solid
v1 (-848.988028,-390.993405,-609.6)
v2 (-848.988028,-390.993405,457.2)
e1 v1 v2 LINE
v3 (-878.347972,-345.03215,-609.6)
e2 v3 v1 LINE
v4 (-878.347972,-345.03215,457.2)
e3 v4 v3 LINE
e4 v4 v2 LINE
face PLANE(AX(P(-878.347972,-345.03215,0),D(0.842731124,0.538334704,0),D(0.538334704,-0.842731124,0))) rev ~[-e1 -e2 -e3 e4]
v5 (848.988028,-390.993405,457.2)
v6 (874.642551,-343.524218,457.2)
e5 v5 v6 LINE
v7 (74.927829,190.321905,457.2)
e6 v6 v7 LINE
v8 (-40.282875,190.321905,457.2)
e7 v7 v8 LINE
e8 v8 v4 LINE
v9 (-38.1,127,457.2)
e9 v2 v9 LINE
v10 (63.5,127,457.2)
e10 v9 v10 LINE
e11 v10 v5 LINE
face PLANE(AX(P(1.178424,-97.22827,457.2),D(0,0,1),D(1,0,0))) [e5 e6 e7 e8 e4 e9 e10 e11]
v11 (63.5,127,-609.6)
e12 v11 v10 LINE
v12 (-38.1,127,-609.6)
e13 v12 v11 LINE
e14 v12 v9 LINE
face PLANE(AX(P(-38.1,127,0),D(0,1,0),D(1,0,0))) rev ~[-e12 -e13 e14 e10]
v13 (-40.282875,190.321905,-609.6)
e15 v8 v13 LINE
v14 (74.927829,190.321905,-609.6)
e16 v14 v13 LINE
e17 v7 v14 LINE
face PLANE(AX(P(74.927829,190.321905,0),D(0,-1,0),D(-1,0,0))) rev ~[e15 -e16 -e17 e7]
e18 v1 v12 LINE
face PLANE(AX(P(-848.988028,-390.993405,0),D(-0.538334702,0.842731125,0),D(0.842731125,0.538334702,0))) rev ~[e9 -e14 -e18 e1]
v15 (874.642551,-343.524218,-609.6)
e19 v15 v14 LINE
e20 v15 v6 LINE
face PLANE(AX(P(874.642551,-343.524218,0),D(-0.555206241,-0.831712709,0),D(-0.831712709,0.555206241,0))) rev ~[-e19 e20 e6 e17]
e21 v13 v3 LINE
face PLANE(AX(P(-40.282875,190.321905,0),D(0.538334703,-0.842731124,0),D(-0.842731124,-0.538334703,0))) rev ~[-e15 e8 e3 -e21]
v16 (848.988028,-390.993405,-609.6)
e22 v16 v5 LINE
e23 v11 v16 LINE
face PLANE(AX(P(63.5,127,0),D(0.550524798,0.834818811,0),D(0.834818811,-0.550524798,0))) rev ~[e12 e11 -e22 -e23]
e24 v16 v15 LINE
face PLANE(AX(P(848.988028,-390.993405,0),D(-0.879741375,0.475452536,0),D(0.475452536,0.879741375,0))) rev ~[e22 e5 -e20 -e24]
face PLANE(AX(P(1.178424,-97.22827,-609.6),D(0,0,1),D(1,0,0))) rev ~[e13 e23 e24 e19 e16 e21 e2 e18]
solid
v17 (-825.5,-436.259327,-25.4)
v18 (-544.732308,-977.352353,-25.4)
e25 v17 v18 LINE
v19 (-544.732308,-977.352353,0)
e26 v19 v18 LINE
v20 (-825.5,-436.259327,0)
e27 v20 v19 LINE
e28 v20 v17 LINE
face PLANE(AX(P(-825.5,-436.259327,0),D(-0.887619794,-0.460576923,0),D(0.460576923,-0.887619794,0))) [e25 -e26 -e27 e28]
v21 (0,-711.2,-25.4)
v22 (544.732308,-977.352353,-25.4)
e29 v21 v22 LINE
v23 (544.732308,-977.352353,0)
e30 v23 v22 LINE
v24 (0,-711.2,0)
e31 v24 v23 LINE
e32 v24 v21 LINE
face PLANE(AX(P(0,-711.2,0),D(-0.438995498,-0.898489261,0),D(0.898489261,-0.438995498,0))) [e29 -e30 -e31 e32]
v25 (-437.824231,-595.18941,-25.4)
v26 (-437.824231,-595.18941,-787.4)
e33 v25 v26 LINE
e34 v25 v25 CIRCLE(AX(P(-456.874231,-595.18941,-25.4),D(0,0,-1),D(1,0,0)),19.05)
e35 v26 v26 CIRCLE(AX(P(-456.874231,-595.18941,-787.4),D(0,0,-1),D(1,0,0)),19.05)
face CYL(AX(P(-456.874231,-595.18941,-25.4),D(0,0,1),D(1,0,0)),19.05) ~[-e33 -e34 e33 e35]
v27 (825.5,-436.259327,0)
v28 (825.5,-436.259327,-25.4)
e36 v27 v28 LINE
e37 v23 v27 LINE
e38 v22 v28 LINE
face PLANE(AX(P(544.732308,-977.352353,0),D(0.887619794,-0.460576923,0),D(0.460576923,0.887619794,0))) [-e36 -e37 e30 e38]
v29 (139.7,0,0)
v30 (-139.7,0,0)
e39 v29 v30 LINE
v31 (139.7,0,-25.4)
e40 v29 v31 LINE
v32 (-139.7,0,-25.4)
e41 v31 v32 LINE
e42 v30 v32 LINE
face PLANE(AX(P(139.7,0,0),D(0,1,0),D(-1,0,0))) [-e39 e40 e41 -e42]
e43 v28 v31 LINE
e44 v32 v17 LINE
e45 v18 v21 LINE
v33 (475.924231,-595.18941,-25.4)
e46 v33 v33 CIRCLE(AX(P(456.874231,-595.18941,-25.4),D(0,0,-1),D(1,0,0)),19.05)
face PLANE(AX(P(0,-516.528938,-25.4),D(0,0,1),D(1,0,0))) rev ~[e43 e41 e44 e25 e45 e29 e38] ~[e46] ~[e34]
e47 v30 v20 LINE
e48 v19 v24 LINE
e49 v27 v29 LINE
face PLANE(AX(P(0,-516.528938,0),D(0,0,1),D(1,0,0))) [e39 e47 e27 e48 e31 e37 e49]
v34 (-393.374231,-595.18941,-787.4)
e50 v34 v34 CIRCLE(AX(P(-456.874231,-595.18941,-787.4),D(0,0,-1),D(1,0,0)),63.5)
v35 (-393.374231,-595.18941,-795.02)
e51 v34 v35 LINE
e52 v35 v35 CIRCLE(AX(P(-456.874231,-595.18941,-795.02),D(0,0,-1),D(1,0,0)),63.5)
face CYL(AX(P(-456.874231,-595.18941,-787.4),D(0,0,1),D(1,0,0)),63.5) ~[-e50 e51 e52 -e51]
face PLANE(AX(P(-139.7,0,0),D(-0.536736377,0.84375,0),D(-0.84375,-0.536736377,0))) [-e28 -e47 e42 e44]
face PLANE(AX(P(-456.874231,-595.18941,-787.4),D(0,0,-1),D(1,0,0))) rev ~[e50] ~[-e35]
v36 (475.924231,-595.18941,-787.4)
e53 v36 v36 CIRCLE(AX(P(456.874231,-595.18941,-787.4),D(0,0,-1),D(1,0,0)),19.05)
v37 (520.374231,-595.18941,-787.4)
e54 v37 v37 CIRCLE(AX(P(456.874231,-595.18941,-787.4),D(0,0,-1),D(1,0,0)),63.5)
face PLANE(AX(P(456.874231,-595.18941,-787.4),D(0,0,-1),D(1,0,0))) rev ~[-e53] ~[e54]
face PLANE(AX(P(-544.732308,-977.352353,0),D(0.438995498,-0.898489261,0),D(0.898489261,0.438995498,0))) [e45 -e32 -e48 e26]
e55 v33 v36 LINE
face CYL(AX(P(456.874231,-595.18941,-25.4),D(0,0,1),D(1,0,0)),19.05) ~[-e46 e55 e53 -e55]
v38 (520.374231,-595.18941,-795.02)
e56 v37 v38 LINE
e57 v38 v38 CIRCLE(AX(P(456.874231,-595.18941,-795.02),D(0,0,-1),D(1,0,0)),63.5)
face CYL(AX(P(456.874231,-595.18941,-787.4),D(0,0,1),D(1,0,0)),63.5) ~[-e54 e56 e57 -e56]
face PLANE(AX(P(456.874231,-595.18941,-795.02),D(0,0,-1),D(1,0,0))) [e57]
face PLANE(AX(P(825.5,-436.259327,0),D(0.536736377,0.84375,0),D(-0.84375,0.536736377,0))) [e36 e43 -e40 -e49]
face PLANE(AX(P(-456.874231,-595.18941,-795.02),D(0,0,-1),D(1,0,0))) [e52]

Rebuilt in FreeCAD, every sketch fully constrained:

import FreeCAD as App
import Part
import Sketcher
Q = App.Units.Quantity


def add_polygon(sketch, points):
    """Adds a closed chain of lines whose ends are joined by coincident constraints."""
    first, n = sketch.GeometryCount, len(points)
    for a, b in zip(points, points[1:] + points[:1]):
        sketch.addGeometry(Part.LineSegment(App.Vector(*a, 0), App.Vector(*b, 0)), False)
    for i in range(n):
        sketch.addConstraint(Sketcher.Constraint("Coincident", first + i, 2, first + (i + 1) % n, 1))

doc = App.newDocument("Part")
body = doc.addObject("PartDesign::Body", "Body")

# Sketch on XY plane
sketch1 = doc.addObject("Sketcher::SketchObject", "Sketch")
body.addObject(sketch1)
sketch1.AttachmentSupport = (doc.XY_Plane, [""])
sketch1.MapMode = "FlatFace"
add_polygon(sketch1, [(140, 0), (-140, 0), (-826, -436), (-545, -977), (0, -711), (545, -977), (826, -436)])  # lines 0-6
sketch1.addConstraint(Sketcher.Constraint("Horizontal", 0))
sketch1.addConstraint(Sketcher.Constraint("Symmetric", 0, 2, 6, 2, -1, 1))
sketch1.addConstraint(Sketcher.Constraint("Symmetric", 2, 2, 4, 2, -2))
sketch1.addConstraint(Sketcher.Constraint("Symmetric", 1, 2, 5, 2, -2))
sketch1.addConstraint(Sketcher.Constraint("PointOnObject", 3, 2, -2))
sketch1.addConstraint(Sketcher.Constraint("DistanceX", 0, 2, 0, 1, Q("11 in")))
sketch1.addConstraint(Sketcher.Constraint("Distance", 1, Q("32 in")))
sketch1.addConstraint(Sketcher.Constraint("Distance", 2, Q("24 in")))
sketch1.addConstraint(Sketcher.Constraint("DistanceY", 3, 2, -1, 1, Q("28 in")))
sketch1.addConstraint(Sketcher.Constraint("DistanceX", 1, 2, 0, 2, Q("27 in")))
sketch1.addConstraint(Sketcher.Constraint("DistanceX", 2, 2, -1, 1, Q("544.732308 mm")))
pad1 = doc.addObject("PartDesign::Pad", "Pad")
body.addObject(pad1)
pad1.Profile = sketch1
pad1.Length = Q("1 in")
pad1.Reversed = True

# Sketch on XY plane
sketch2 = doc.addObject("Sketcher::SketchObject", "Sketch001")
body.addObject(sketch2)
sketch2.AttachmentSupport = (doc.XY_Plane, [""])
sketch2.MapMode = "FlatFace"
sketch2.AttachmentOffset = App.Placement(App.Vector(0, 0, -1 * 25.4), App.Rotation())
sketch2.addGeometry(Part.Circle(App.Vector(-457, -595, 0), App.Vector(0, 0, 1), 19), False)
sketch2.addGeometry(Part.Circle(App.Vector(457, -595, 0), App.Vector(0, 0, 1), 19), False)
sketch2.addConstraint(Sketcher.Constraint("Equal", 0, 1))
sketch2.addConstraint(Sketcher.Constraint("Symmetric", 0, 3, 1, 3, -2))
sketch2.addConstraint(Sketcher.Constraint("Diameter", 0, Q("1.5 in")))
sketch2.addConstraint(Sketcher.Constraint("DistanceX", 0, 3, -1, 1, Q("456.874231 mm")))
sketch2.addConstraint(Sketcher.Constraint("DistanceY", 0, 3, -1, 1, Q("595.18941 mm")))
pad2 = doc.addObject("PartDesign::Pad", "Pad001")
body.addObject(pad2)
pad2.Profile = sketch2
pad2.Length = Q("30 in")
pad2.Reversed = True

# Sketch on XY plane
sketch3 = doc.addObject("Sketcher::SketchObject", "Sketch002")
body.addObject(sketch3)
sketch3.AttachmentSupport = (doc.XY_Plane, [""])
sketch3.MapMode = "FlatFace"
sketch3.AttachmentOffset = App.Placement(App.Vector(0, 0, -31 * 25.4), App.Rotation())
sketch3.addGeometry(Part.Circle(App.Vector(-457, -595, 0), App.Vector(0, 0, 1), 64), False)
sketch3.addGeometry(Part.Circle(App.Vector(457, -595, 0), App.Vector(0, 0, 1), 64), False)
sketch3.addConstraint(Sketcher.Constraint("Equal", 0, 1))
sketch3.addConstraint(Sketcher.Constraint("Symmetric", 0, 3, 1, 3, -2))
sketch3.addConstraint(Sketcher.Constraint("Diameter", 0, Q("5 in")))
sketch3.addConstraint(Sketcher.Constraint("DistanceX", 0, 3, -1, 1, Q("456.874231 mm")))
sketch3.addConstraint(Sketcher.Constraint("DistanceY", 0, 3, -1, 1, Q("595.18941 mm")))
pad3 = doc.addObject("PartDesign::Pad", "Pad002")
body.addObject(pad3)
pad3.Profile = sketch3
pad3.Length = Q("0.3 in")
pad3.Reversed = True
body2 = doc.addObject("PartDesign::Body", "Body001")

# Sketch on XY plane
sketch4 = doc.addObject("Sketcher::SketchObject", "Sketch003")
body2.addObject(sketch4)
sketch4.AttachmentSupport = (doc.getObject("XY_Plane001"), [""])
sketch4.MapMode = "FlatFace"
add_polygon(sketch4, [(-878, -345), (-849, -391), (-38, 127), (64, 127), (849, -391), (875, -344), (75, 190), (-40, 190)])  # lines 0-7
sketch4.addConstraint(Sketcher.Constraint("Horizontal", 2))
sketch4.addConstraint(Sketcher.Constraint("Horizontal", 6))
sketch4.addConstraint(Sketcher.Constraint("Symmetric", 0, 2, 3, 2, -2))
sketch4.addConstraint(Sketcher.Constraint("Perpendicular", 0, 1))
sketch4.addConstraint(Sketcher.Constraint("Parallel", 1, 7))
sketch4.addConstraint(Sketcher.Constraint("DistanceX", 2, 1, 2, 2, Q("4 in")))
sketch4.addConstraint(Sketcher.Constraint("DistanceY", -1, 1, 1, 2, Q("5 in")))
sketch4.addConstraint(Sketcher.Constraint("DistanceX", 1, 2, -1, 1, Q("1.5 in")))
sketch4.addConstraint(Sketcher.Constraint("DistanceX", 5, 2, 3, 2, Q("774.060199 mm")))
sketch4.addConstraint(Sketcher.Constraint("DistanceX", 7, 2, 5, 2, Q("953.275801 mm")))
sketch4.addConstraint(Sketcher.Constraint("DistanceX", 6, 2, 6, 1, Q("115.210704 mm")))
sketch4.addConstraint(Sketcher.Constraint("DistanceX", 0, 2, -1, 1, Q("848.988028 mm")))
sketch4.addConstraint(Sketcher.Constraint("DistanceX", -1, 1, 4, 2, Q("874.642551 mm")))
sketch4.addConstraint(Sketcher.Constraint("DistanceY", 4, 2, -1, 1, Q("343.524218 mm")))
sketch4.addConstraint(Sketcher.Constraint("DistanceY", 7, 2, -1, 1, Q("345.03215 mm")))
pad4 = doc.addObject("PartDesign::Pad", "Pad003")
body2.addObject(pad4)
pad4.Profile = sketch4
pad4.Length = Q("24 in")
pad4.Reversed = True

# Sketch on XY plane
sketch5 = doc.addObject("Sketcher::SketchObject", "Sketch004")
body2.addObject(sketch5)
sketch5.AttachmentSupport = (doc.getObject("XY_Plane001"), [""])
sketch5.MapMode = "FlatFace"
add_polygon(sketch5, [(-878, -345), (-849, -391), (-38, 127), (64, 127), (849, -391), (875, -344), (75, 190), (-40, 190)])  # lines 0-7
sketch5.addConstraint(Sketcher.Constraint("Horizontal", 2))
sketch5.addConstraint(Sketcher.Constraint("Horizontal", 6))
sketch5.addConstraint(Sketcher.Constraint("Symmetric", 0, 2, 3, 2, -2))
sketch5.addConstraint(Sketcher.Constraint("Perpendicular", 0, 1))
sketch5.addConstraint(Sketcher.Constraint("Parallel", 1, 7))
sketch5.addConstraint(Sketcher.Constraint("DistanceX", 2, 1, 2, 2, Q("4 in")))
sketch5.addConstraint(Sketcher.Constraint("DistanceY", -1, 1, 1, 2, Q("5 in")))
sketch5.addConstraint(Sketcher.Constraint("DistanceX", 1, 2, -1, 1, Q("1.5 in")))
sketch5.addConstraint(Sketcher.Constraint("DistanceX", 5, 2, 3, 2, Q("774.060199 mm")))
sketch5.addConstraint(Sketcher.Constraint("DistanceX", 7, 2, 5, 2, Q("953.275801 mm")))
sketch5.addConstraint(Sketcher.Constraint("DistanceX", 6, 2, 6, 1, Q("115.210704 mm")))
sketch5.addConstraint(Sketcher.Constraint("DistanceX", 0, 2, -1, 1, Q("848.988028 mm")))
sketch5.addConstraint(Sketcher.Constraint("DistanceX", -1, 1, 4, 2, Q("874.642551 mm")))
sketch5.addConstraint(Sketcher.Constraint("DistanceY", 4, 2, -1, 1, Q("343.524218 mm")))
sketch5.addConstraint(Sketcher.Constraint("DistanceY", 7, 2, -1, 1, Q("345.03215 mm")))
pad5 = doc.addObject("PartDesign::Pad", "Pad004")
body2.addObject(pad5)
pad5.Profile = sketch5
pad5.Length = Q("18 in")

doc.recompute()
